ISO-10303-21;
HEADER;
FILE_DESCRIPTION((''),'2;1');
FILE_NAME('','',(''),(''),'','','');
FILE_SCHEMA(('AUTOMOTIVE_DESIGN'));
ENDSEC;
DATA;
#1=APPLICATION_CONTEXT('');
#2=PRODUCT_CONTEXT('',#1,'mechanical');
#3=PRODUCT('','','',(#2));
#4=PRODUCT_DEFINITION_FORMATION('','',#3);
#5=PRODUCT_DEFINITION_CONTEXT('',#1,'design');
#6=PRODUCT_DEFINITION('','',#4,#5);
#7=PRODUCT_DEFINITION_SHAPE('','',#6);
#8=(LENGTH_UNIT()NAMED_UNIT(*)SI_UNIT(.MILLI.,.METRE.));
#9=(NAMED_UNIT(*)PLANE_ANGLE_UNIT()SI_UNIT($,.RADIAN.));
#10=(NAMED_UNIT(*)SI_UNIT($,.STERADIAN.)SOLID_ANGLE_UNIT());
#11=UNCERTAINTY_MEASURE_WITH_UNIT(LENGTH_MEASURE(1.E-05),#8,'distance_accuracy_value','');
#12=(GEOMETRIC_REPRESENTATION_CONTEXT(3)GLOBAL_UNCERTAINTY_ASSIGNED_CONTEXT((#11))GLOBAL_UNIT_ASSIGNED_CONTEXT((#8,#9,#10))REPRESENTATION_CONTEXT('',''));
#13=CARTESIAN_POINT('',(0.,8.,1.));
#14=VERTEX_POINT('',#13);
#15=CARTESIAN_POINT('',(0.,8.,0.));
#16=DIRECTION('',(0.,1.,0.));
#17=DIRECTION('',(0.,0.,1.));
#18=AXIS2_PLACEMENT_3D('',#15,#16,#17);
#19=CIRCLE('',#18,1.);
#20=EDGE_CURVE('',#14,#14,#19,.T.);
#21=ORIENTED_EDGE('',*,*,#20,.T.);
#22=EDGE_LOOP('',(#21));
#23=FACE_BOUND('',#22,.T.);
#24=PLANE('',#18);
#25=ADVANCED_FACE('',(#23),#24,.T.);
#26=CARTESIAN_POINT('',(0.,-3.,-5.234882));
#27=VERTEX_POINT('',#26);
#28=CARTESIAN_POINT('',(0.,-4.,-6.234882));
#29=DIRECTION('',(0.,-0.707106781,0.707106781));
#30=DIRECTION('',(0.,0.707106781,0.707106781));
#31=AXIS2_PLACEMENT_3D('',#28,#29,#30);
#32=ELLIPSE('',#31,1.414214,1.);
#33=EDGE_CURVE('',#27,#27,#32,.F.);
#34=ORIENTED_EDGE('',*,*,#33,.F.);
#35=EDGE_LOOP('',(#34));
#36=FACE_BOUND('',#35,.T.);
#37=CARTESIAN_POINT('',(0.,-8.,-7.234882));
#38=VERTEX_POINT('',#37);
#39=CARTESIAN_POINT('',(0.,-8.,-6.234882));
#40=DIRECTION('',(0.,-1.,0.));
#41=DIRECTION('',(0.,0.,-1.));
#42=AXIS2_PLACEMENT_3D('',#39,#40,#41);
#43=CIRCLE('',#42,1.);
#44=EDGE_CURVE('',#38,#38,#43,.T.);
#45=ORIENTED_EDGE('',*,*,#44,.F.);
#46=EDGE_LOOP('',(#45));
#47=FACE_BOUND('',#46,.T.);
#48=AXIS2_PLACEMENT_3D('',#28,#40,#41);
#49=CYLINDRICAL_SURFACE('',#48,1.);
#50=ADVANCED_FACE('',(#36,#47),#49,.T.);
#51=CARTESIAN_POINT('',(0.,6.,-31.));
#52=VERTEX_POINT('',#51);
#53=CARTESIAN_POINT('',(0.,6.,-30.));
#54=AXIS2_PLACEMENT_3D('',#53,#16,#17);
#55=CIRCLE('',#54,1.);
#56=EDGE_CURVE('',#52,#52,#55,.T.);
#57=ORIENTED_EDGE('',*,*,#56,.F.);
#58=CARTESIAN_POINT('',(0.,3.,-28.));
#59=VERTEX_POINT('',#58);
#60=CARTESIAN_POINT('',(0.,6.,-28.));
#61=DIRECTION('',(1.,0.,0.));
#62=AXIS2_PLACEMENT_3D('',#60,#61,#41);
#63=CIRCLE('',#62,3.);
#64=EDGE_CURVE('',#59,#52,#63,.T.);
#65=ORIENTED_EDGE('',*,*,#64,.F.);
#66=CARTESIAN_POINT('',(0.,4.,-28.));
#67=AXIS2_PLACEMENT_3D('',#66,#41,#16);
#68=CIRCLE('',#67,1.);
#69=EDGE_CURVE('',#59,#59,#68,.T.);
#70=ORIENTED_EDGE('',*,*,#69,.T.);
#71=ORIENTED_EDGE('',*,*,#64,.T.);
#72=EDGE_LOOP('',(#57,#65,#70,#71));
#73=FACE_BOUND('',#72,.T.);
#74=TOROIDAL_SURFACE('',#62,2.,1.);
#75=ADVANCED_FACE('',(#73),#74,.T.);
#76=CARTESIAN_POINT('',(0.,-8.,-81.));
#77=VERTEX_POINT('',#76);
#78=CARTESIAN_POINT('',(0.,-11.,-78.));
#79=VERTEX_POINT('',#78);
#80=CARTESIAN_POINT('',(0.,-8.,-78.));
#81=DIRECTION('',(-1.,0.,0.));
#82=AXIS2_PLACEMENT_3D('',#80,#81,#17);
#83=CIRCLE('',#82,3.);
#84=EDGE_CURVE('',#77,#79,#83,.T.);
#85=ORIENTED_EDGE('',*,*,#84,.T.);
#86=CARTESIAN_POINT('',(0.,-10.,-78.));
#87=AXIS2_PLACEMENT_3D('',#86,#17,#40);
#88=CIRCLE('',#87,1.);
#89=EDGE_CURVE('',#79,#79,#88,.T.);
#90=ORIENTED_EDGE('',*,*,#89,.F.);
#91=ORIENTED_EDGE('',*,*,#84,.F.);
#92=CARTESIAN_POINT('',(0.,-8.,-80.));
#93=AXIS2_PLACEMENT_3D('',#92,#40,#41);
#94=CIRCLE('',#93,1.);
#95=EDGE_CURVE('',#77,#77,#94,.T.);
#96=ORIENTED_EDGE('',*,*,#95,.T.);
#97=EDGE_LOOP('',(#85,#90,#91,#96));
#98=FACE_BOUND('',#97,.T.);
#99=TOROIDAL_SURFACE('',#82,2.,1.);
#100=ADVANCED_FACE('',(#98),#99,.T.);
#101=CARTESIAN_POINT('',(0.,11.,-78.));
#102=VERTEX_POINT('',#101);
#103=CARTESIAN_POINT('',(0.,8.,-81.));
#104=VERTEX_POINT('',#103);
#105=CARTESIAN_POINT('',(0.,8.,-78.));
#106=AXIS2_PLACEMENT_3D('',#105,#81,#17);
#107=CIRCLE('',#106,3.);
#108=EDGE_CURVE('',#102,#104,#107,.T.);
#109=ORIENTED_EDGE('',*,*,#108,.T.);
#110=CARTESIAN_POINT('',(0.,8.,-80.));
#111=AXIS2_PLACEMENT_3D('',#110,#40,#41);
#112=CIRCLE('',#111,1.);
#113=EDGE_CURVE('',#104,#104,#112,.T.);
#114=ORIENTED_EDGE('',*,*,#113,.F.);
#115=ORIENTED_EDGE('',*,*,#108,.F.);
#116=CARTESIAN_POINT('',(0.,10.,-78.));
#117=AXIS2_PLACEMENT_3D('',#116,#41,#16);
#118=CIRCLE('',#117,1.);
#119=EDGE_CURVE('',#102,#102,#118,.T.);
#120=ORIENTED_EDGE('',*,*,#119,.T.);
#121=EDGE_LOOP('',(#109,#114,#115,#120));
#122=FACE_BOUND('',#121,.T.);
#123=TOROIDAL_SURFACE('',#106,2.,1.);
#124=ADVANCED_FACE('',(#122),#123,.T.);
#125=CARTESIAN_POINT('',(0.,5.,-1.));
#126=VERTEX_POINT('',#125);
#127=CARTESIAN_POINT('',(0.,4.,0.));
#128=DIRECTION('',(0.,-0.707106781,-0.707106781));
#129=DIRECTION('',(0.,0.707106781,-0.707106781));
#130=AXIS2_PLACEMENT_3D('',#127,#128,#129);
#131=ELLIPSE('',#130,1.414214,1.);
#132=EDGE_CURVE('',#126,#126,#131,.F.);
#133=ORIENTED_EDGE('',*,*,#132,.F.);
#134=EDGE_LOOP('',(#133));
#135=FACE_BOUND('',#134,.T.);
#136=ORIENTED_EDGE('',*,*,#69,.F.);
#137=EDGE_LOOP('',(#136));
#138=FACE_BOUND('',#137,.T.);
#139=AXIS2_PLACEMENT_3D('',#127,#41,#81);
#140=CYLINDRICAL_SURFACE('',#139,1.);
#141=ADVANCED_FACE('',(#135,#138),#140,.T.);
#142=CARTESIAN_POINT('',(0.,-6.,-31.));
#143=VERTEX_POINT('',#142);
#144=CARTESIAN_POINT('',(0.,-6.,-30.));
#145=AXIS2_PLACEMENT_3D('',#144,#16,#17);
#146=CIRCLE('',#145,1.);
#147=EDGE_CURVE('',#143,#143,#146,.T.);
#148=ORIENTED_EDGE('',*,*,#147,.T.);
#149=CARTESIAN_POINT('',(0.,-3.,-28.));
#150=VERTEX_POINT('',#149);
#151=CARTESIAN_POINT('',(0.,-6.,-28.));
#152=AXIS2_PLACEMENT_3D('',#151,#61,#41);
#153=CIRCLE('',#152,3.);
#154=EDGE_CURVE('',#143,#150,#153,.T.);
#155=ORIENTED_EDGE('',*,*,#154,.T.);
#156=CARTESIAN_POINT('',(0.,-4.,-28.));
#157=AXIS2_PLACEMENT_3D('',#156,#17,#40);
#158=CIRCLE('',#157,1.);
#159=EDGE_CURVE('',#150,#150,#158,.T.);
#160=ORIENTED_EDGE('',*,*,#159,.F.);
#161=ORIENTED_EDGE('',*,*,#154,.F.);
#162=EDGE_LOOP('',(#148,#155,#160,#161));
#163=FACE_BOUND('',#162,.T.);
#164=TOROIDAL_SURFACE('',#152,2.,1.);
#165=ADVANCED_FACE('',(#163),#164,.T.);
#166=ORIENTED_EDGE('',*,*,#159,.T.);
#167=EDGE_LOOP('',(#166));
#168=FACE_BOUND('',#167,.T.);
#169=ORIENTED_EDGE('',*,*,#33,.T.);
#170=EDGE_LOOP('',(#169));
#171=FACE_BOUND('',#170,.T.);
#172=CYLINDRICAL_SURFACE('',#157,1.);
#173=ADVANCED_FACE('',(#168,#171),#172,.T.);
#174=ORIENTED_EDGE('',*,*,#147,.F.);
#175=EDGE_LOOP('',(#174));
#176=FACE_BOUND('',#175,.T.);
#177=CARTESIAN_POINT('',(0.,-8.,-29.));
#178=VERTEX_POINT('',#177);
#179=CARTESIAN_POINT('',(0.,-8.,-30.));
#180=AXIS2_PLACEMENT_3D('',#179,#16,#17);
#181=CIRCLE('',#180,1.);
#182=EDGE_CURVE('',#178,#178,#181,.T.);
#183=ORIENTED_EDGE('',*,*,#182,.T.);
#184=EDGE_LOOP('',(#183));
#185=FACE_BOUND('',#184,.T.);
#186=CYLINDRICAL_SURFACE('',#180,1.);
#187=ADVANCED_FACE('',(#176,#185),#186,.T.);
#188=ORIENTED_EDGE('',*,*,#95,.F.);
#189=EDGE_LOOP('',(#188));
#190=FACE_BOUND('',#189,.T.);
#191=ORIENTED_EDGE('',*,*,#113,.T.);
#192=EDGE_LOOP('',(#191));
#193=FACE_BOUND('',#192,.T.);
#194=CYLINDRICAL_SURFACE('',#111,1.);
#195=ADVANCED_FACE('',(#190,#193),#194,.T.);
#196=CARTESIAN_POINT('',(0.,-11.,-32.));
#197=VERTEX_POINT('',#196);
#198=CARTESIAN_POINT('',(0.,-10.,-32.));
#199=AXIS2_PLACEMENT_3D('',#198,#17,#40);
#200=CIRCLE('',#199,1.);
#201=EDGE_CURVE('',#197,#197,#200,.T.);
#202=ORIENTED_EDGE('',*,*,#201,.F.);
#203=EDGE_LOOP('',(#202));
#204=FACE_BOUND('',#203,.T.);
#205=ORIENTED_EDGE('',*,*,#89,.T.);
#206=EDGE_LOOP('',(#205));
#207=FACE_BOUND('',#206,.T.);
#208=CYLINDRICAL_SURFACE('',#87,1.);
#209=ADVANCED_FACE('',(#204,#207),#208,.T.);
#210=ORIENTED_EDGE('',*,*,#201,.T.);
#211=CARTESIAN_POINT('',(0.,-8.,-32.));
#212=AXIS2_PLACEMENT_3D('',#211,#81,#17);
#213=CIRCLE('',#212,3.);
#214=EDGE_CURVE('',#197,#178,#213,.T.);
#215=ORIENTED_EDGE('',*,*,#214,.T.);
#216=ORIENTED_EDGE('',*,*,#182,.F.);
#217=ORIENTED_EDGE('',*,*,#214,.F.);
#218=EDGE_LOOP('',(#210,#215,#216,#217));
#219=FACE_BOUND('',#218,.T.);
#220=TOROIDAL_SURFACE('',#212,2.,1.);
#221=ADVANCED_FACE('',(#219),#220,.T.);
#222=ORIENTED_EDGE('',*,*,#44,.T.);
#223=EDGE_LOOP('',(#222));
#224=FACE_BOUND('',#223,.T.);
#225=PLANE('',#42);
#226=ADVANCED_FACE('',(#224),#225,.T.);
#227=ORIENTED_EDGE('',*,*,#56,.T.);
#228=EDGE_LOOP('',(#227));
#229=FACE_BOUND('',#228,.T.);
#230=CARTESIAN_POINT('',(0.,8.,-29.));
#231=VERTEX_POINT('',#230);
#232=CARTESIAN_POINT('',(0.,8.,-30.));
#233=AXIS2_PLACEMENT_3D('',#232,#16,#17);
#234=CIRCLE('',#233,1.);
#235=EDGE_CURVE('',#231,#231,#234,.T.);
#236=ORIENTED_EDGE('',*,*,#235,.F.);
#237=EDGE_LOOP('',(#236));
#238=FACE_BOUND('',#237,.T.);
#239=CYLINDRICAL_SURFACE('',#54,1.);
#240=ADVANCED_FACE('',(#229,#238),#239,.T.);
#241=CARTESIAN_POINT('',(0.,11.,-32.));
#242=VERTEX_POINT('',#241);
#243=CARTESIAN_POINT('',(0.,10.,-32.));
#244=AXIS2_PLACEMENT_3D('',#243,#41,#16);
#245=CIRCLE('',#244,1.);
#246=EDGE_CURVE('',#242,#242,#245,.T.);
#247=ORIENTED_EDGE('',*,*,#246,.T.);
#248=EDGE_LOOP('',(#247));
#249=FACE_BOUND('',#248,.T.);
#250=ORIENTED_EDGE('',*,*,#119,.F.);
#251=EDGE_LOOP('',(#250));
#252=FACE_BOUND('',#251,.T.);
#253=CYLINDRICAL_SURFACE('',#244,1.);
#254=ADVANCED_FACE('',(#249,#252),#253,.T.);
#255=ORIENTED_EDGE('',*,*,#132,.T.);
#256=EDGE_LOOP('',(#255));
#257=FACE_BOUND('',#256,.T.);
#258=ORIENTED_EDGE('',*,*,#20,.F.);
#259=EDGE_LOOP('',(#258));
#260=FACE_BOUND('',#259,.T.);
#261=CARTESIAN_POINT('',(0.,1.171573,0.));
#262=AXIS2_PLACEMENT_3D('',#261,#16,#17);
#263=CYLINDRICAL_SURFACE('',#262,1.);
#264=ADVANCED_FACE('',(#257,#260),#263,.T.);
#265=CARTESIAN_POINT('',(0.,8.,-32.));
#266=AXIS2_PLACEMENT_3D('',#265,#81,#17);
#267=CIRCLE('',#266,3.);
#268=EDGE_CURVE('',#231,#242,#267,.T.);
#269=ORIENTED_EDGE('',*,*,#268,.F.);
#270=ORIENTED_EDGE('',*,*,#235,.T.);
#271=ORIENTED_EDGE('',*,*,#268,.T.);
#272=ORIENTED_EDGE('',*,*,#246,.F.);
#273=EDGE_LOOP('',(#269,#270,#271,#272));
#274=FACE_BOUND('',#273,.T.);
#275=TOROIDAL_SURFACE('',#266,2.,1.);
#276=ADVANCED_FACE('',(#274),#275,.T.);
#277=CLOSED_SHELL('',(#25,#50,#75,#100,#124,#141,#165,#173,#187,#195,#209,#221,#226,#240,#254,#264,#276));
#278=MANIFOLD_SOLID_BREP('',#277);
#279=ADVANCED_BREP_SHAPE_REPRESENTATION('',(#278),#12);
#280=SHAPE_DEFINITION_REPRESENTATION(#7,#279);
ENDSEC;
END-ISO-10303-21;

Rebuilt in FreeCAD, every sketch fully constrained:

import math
import FreeCAD as App
import Part
import Sketcher
from FreeCAD import Vector

doc = App.newDocument("Part")
body = doc.addObject("PartDesign::Body", "Body")

# Sketch on XZ plane
sketch1 = body.newObject("Sketcher::SketchObject", "Sketch")
sketch1.AttachmentSupport = (doc.getObject("XZ_Plane"), [""])
sketch1.MapMode = "FlatFace"
sketch1.AttachmentOffset = App.Placement(Vector(0, 0, -8), App.Rotation())
sketch1.addGeometry(Part.Circle(Vector(0, 0, 0), Vector(0, 0, 1), 1), False)
sketch1.addConstraint(Sketcher.Constraint("Coincident", 0, 3, -1, 1))
sketch1.addConstraint(Sketcher.Constraint("Diameter", 0, 2.0))

# Sketch on YZ plane
sketch2 = body.newObject("Sketcher::SketchObject", "Sketch001")
sketch2.AttachmentSupport = (doc.getObject("YZ_Plane"), [""])
sketch2.MapMode = "FlatFace"
sketch2.addGeometry(Part.LineSegment(Vector(8, 0, 0), Vector(4, 0, 0)), False)
sketch2.addGeometry(Part.LineSegment(Vector(4, 0, 0), Vector(4, -28, 0)), False)
sketch2.addGeometry(Part.ArcOfCircle(Part.Circle(Vector(6, -28, 0), Vector(0, 0, 1), 2), math.radians(-180), math.radians(-90)), False)
sketch2.addGeometry(Part.LineSegment(Vector(6, -30, 0), Vector(8, -30, 0)), False)
sketch2.addGeometry(Part.ArcOfCircle(Part.Circle(Vector(8, -32, 0), Vector(0, 0, 1), 2), math.radians(0), math.radians(90)), False)
sketch2.addGeometry(Part.LineSegment(Vector(10, -32, 0), Vector(10, -78, 0)), False)
sketch2.addGeometry(Part.ArcOfCircle(Part.Circle(Vector(8, -78, 0), Vector(0, 0, 1), 2), math.radians(-90), math.radians(0)), False)
sketch2.addGeometry(Part.LineSegment(Vector(8, -80, 0), Vector(-8, -80, 0)), False)
sketch2.addGeometry(Part.ArcOfCircle(Part.Circle(Vector(-8, -78, 0), Vector(0, 0, 1), 2), math.radians(-180), math.radians(-90)), False)
sketch2.addGeometry(Part.LineSegment(Vector(-10, -78, 0), Vector(-10, -32, 0)), False)
sketch2.addGeometry(Part.ArcOfCircle(Part.Circle(Vector(-8, -32, 0), Vector(0, 0, 1), 2), math.radians(90), math.radians(180)), False)
sketch2.addGeometry(Part.LineSegment(Vector(-8, -30, 0), Vector(-6, -30, 0)), False)
sketch2.addGeometry(Part.ArcOfCircle(Part.Circle(Vector(-6, -28, 0), Vector(0, 0, 1), 2), math.radians(-90), math.radians(0)), False)
sketch2.addGeometry(Part.LineSegment(Vector(-4, -28, 0), Vector(-4, -6.2, 0)), False)
sketch2.addGeometry(Part.LineSegment(Vector(-4, -6.2, 0), Vector(-8, -6.2, 0)), False)
sketch2.addConstraint(Sketcher.Constraint("Coincident", 0, 2, 1, 1))
sketch2.addConstraint(Sketcher.Constraint("Tangent", 1, 2, 2, 1))
sketch2.addConstraint(Sketcher.Constraint("Tangent", 2, 2, 3, 1))
sketch2.addConstraint(Sketcher.Constraint("Tangent", 3, 2, 4, 2))
sketch2.addConstraint(Sketcher.Constraint("Tangent", 4, 1, 5, 1))
sketch2.addConstraint(Sketcher.Constraint("Tangent", 5, 2, 6, 2))
sketch2.addConstraint(Sketcher.Constraint("Tangent", 6, 1, 7, 1))
sketch2.addConstraint(Sketcher.Constraint("Tangent", 7, 2, 8, 2))
sketch2.addConstraint(Sketcher.Constraint("Tangent", 8, 1, 9, 1))
sketch2.addConstraint(Sketcher.Constraint("Tangent", 9, 2, 10, 2))
sketch2.addConstraint(Sketcher.Constraint("Tangent", 10, 1, 11, 1))
sketch2.addConstraint(Sketcher.Constraint("Tangent", 11, 2, 12, 1))
sketch2.addConstraint(Sketcher.Constraint("Tangent", 12, 2, 13, 1))
sketch2.addConstraint(Sketcher.Constraint("Coincident", 13, 2, 14, 1))
sketch2.addConstraint(Sketcher.Constraint("Horizontal", 0))
sketch2.addConstraint(Sketcher.Constraint("Vertical", 1))
sketch2.addConstraint(Sketcher.Constraint("Horizontal", 3))
sketch2.addConstraint(Sketcher.Constraint("Vertical", 5))
sketch2.addConstraint(Sketcher.Constraint("Horizontal", 7))
sketch2.addConstraint(Sketcher.Constraint("Vertical", 9))
sketch2.addConstraint(Sketcher.Constraint("Horizontal", 11))
sketch2.addConstraint(Sketcher.Constraint("Vertical", 13))
sketch2.addConstraint(Sketcher.Constraint("Horizontal", 14))
sketch2.addConstraint(Sketcher.Constraint("Equal", 2, 4))
sketch2.addConstraint(Sketcher.Constraint("Equal", 4, 6))
sketch2.addConstraint(Sketcher.Constraint("Equal", 6, 8))
sketch2.addConstraint(Sketcher.Constraint("Equal", 8, 10))
sketch2.addConstraint(Sketcher.Constraint("Equal", 10, 12))
sketch2.addConstraint(Sketcher.Constraint("Symmetric", 4, 3, 10, 3, -2))
sketch2.addConstraint(Sketcher.Constraint("PointOnObject", 0, 1, -1))
sketch2.addConstraint(Sketcher.Constraint("Vertical", 6, 3, 0, 1))
sketch2.addConstraint(Sketcher.Constraint("Vertical", 10, 1, 14, 2))
sketch2.addConstraint(Sketcher.Constraint("Equal", 3, 11))
sketch2.addConstraint(Sketcher.Constraint("Radius", 2, 2.0))
sketch2.addConstraint(Sketcher.Constraint("DistanceX", 0, 2, 0, 1, 4.0))
sketch2.addConstraint(Sketcher.Constraint("DistanceX", 7, 2, 7, 1, 16.0))
sketch2.addConstraint(Sketcher.Constraint("DistanceY", 1, 2, 1, 1, 28.0))
sketch2.addConstraint(Sketcher.Constraint("DistanceY", 5, 2, 5, 1, 46.0))
sketch2.addConstraint(Sketcher.Constraint("DistanceY", 13, 1, 13, 2, 21.765118))
doc.recompute()

additivepipe = body.newObject("PartDesign::AdditivePipe", "AdditivePipe")
additivepipe.Profile = sketch1
additivepipe.Spine = (sketch2, ["Edge1", "Edge2", "Edge3", "Edge4", "Edge5", "Edge6", "Edge7", "Edge8", "Edge9", "Edge10", "Edge11", "Edge12", "Edge13", "Edge14", "Edge15"])
additivepipe.Transition = "Right corner"

doc.recompute()
